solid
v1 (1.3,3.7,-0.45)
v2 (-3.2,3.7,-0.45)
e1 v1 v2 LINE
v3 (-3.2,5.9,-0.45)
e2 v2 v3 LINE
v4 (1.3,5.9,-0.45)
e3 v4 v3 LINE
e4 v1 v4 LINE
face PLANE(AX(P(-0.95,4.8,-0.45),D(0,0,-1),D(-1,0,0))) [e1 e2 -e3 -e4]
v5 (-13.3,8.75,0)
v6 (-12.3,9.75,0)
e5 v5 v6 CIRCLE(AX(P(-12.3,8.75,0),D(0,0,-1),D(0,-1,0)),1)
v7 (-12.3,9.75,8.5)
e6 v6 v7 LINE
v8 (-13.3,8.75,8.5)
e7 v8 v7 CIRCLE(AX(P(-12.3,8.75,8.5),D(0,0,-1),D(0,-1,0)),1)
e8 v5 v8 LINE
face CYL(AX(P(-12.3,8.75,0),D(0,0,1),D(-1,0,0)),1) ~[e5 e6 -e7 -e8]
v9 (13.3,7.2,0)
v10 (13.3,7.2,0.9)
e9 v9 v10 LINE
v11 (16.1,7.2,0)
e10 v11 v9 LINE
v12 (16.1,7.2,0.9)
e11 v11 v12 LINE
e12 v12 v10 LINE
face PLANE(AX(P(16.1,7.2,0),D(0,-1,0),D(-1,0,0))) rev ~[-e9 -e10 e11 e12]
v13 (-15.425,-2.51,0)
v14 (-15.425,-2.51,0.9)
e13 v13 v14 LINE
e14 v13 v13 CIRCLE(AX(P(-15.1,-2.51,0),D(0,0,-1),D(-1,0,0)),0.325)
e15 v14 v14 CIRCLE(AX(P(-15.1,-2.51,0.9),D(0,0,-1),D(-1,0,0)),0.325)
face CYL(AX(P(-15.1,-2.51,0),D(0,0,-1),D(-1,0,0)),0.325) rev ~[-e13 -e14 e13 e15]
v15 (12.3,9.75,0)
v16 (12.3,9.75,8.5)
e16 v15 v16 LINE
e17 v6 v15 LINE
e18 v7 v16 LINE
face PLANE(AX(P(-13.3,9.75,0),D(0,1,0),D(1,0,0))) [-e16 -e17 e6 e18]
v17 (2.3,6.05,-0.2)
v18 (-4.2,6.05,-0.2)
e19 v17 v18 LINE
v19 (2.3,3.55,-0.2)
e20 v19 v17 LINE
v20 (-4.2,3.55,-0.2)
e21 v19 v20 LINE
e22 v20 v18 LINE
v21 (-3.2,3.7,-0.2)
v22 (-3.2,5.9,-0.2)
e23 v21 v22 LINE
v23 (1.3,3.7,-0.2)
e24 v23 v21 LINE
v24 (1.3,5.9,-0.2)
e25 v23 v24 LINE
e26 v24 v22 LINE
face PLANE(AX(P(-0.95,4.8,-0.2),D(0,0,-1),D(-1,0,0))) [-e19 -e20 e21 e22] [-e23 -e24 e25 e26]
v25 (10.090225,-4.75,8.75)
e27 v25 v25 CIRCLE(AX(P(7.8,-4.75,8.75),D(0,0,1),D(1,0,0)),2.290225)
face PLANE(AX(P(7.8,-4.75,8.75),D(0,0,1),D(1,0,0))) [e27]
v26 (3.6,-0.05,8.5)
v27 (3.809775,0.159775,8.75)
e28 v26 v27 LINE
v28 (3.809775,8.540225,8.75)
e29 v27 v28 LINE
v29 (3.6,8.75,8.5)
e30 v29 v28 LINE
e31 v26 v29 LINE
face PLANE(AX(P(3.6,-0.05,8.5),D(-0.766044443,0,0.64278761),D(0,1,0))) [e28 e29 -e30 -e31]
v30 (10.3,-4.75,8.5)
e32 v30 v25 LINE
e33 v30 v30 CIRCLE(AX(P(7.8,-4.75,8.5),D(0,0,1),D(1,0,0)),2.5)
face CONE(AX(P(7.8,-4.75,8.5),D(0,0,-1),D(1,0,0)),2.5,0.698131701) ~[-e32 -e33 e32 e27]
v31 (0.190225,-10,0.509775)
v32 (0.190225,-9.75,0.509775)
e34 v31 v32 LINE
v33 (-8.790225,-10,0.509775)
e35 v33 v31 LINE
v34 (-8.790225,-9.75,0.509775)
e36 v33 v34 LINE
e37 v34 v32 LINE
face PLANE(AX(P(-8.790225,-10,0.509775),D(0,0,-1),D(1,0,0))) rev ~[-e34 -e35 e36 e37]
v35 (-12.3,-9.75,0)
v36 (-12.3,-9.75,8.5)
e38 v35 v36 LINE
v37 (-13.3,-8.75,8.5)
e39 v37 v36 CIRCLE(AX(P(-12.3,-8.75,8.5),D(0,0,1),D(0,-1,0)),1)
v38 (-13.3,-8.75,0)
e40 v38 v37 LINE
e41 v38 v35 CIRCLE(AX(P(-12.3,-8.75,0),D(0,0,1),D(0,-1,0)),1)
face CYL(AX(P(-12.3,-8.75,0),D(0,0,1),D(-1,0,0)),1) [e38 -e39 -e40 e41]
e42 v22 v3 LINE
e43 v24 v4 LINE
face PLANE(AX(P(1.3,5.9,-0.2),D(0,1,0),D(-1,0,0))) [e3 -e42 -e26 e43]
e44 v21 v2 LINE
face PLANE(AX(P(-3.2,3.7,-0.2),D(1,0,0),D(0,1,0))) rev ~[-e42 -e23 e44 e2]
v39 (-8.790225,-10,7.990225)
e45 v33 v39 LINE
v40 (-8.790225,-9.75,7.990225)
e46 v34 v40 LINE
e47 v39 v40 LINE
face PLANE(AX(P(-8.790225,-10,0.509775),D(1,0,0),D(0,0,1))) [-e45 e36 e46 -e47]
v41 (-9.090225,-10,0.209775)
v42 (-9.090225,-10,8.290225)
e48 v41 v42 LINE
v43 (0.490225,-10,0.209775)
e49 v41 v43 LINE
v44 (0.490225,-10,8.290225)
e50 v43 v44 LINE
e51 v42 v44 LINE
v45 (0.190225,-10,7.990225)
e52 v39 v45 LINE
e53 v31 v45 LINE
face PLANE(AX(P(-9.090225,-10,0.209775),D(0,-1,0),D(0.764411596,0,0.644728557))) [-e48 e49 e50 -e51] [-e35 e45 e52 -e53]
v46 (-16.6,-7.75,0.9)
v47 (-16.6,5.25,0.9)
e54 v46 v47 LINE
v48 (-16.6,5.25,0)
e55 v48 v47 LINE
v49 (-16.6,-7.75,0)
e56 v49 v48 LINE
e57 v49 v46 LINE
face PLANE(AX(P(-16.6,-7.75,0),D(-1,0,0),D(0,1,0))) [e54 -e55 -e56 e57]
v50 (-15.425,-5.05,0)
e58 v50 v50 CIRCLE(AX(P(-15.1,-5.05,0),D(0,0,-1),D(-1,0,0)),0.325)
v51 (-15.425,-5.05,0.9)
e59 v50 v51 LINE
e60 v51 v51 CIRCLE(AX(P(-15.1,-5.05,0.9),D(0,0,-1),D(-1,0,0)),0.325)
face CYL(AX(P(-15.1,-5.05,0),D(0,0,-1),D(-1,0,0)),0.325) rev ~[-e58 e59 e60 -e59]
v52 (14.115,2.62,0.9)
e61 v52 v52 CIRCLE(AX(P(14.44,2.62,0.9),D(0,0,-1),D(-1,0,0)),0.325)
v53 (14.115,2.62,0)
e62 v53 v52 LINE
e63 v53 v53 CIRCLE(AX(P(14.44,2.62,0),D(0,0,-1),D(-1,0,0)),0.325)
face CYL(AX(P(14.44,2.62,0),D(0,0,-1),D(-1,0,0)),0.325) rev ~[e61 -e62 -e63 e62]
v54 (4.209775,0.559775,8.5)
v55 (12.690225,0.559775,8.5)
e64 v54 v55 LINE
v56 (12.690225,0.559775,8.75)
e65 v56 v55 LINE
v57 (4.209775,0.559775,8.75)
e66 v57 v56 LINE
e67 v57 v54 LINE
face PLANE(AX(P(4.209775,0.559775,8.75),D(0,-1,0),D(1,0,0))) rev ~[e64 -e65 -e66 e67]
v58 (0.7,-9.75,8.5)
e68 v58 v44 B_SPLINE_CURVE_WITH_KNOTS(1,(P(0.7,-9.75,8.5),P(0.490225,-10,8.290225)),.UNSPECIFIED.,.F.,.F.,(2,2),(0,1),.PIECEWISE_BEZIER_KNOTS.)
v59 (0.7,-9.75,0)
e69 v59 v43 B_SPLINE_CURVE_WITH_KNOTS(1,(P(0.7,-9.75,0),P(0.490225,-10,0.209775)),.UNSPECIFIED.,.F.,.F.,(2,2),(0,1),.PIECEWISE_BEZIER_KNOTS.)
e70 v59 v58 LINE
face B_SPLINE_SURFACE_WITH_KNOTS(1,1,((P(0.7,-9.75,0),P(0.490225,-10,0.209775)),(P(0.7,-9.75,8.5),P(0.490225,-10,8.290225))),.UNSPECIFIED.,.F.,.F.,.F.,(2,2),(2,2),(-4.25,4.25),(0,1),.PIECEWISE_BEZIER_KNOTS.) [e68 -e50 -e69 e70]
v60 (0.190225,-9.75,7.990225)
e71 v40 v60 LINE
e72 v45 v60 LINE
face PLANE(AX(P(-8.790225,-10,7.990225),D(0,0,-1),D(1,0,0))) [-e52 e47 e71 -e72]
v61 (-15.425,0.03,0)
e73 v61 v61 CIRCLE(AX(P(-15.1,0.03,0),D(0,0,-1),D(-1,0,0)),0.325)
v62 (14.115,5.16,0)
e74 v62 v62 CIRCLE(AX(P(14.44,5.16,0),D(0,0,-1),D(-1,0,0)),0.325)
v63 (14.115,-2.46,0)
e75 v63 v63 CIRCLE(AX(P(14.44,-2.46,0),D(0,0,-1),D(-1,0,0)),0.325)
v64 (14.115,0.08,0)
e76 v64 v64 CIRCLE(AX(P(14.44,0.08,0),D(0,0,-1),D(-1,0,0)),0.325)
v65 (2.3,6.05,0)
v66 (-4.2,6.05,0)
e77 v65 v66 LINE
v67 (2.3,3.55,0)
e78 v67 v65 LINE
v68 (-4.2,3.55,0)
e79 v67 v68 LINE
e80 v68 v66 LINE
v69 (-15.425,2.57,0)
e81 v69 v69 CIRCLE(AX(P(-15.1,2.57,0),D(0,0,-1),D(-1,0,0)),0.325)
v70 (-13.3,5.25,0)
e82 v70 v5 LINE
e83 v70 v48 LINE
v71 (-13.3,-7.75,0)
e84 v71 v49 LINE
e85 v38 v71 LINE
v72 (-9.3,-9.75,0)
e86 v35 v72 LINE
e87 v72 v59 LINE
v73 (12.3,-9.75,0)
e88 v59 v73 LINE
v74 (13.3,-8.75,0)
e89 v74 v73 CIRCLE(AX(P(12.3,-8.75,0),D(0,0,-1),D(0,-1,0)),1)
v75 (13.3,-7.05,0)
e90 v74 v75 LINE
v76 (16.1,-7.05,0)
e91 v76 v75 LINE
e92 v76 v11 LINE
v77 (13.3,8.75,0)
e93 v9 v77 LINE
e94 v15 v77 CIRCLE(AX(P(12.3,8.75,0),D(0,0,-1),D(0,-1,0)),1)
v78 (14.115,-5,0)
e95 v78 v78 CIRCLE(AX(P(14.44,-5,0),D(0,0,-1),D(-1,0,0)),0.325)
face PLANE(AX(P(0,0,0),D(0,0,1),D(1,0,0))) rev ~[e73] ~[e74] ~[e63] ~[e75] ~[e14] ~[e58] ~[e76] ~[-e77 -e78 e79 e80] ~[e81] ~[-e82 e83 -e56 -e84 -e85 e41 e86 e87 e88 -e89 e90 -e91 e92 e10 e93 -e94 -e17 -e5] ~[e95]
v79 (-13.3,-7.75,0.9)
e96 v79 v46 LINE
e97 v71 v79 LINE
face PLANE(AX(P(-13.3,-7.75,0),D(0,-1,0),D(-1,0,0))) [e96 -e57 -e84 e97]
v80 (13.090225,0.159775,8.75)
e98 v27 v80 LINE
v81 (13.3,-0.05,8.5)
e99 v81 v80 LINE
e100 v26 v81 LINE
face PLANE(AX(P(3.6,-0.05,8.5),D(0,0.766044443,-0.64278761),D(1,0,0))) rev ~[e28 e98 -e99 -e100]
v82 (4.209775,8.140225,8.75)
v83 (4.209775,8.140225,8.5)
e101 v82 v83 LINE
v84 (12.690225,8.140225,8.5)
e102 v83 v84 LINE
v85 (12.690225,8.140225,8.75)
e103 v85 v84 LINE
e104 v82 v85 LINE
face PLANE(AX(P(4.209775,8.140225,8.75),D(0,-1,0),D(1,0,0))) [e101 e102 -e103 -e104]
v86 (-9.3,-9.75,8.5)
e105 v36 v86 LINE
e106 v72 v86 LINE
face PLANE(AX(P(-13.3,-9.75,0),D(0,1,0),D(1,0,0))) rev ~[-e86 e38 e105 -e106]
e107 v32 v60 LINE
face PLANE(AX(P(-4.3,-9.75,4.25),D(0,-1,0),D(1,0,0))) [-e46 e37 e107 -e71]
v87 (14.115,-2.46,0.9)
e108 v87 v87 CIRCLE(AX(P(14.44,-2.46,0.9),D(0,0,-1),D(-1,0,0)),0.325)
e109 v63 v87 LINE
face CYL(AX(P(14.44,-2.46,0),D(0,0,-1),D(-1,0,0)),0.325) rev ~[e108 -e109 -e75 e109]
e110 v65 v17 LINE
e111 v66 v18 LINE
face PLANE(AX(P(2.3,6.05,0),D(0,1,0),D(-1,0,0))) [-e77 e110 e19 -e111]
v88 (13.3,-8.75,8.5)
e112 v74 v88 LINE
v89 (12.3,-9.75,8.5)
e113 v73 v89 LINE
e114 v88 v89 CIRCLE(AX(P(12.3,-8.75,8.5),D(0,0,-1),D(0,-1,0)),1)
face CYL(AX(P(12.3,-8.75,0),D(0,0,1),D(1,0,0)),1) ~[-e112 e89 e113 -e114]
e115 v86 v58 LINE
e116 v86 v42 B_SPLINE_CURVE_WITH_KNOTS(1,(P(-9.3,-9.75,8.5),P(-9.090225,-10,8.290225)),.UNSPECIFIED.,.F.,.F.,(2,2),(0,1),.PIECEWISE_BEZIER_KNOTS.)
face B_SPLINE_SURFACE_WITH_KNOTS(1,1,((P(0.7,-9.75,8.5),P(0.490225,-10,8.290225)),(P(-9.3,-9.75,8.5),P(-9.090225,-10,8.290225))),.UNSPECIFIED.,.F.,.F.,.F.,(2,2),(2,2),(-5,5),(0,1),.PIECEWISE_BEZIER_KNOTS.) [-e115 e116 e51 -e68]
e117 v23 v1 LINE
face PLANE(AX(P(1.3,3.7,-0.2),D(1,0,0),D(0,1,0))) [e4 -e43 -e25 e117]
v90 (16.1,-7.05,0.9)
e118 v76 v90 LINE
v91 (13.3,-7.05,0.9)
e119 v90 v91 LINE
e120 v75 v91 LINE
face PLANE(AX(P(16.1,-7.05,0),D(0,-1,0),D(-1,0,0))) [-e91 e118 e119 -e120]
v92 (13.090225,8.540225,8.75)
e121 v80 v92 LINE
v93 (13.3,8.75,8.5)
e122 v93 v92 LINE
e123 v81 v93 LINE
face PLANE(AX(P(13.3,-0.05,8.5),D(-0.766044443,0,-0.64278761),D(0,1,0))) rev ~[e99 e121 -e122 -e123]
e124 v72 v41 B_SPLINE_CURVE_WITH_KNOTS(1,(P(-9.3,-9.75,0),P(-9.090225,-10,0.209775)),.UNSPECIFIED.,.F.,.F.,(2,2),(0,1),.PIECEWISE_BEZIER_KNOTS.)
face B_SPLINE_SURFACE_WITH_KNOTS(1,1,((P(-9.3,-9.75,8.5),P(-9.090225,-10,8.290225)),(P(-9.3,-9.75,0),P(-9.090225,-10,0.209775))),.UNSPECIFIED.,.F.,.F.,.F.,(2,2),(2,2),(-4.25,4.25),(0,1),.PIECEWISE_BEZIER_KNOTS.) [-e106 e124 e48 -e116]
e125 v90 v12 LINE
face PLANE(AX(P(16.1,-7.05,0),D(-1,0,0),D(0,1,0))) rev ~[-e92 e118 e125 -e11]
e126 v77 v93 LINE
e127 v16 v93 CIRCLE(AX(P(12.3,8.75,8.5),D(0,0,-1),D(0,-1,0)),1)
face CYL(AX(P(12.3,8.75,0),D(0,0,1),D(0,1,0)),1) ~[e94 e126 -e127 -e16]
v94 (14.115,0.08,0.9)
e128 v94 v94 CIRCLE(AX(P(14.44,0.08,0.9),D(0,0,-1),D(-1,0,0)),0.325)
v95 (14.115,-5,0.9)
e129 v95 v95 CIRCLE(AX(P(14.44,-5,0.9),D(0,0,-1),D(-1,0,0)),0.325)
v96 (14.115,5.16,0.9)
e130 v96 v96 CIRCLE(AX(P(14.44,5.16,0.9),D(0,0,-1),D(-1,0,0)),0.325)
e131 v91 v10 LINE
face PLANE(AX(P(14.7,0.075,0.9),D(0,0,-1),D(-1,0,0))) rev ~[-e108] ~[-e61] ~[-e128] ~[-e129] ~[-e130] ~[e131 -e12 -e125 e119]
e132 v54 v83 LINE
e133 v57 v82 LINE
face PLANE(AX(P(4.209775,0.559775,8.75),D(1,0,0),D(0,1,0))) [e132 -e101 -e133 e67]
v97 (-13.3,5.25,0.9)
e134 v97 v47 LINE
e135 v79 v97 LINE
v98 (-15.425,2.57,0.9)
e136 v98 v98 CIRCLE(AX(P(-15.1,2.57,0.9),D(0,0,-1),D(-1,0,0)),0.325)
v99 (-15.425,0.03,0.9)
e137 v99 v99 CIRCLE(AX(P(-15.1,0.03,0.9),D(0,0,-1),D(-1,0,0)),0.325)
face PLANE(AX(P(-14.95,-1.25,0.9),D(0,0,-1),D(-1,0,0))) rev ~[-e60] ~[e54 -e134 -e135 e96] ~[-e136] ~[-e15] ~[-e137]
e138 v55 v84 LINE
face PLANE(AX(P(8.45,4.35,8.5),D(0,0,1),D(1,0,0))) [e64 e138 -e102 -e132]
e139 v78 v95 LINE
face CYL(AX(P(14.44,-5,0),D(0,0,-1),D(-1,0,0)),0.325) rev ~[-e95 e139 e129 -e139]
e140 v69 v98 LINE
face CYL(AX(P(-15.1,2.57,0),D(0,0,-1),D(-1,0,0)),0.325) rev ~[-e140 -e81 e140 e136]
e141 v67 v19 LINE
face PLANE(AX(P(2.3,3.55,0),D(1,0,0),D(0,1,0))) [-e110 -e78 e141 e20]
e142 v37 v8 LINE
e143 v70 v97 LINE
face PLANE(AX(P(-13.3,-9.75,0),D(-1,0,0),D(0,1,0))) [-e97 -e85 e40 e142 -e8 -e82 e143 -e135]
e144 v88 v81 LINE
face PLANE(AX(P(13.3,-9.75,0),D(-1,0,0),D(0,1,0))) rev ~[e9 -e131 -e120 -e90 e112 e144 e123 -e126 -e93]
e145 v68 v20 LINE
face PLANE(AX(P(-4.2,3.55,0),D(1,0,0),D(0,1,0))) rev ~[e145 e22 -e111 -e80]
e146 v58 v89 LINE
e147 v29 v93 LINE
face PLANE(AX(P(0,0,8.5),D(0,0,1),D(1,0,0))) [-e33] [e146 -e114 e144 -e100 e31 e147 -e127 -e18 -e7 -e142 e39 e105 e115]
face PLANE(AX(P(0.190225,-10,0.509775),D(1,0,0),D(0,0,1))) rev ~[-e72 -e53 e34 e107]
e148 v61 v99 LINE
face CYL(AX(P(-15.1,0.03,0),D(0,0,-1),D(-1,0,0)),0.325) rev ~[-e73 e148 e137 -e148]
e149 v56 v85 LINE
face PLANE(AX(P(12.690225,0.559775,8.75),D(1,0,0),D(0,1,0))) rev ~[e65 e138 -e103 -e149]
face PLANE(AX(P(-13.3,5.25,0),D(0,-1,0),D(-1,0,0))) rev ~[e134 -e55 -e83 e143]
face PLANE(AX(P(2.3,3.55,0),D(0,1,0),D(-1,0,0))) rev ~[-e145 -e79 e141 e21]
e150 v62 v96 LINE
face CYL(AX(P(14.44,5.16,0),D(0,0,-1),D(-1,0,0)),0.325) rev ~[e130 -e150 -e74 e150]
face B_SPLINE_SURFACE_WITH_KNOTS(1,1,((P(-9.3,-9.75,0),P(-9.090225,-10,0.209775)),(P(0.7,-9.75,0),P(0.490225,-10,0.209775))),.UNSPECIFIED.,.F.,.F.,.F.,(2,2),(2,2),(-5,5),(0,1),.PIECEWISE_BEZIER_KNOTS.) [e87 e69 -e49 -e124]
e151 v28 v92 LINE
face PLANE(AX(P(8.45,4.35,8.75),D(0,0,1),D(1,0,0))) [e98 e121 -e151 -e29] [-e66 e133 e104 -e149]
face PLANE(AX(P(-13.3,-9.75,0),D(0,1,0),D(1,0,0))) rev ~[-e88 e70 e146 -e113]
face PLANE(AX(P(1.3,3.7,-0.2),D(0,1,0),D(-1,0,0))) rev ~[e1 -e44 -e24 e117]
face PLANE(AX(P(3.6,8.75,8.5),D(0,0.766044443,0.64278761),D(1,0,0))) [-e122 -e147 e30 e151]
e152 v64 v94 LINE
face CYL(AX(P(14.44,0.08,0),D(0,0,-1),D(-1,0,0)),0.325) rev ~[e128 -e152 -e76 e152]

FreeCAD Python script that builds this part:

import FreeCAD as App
import Part
import Sketcher


def edges_at(feature, points):
    """Names of the edges that pass closest to the given points."""
    edges = feature.Shape.Edges
    near = lambda p: min(range(len(edges)), key=lambda i: edges[i].distToShape(Part.Vertex(*p))[0])
    return sorted({f"Edge{near(p) + 1}" for p in points})


def faces_at(feature, points):
    """Names of the faces that lie closest to the given points."""
    faces = feature.Shape.Faces
    near = lambda p: min(range(len(faces)), key=lambda i: faces[i].distToShape(Part.Vertex(*p))[0])
    return sorted({f"Face{near(p) + 1}" for p in points})

doc = App.newDocument("Part")
body = doc.addObject("PartDesign::Body", "Body")

# Sketch on XY plane
sketch1 = body.newObject("Sketcher::SketchObject", "Sketch")
sketch1.AttachmentSupport = (doc.getObject("XY_Plane"), [""])
sketch1.MapMode = "FlatFace"
sketch1.addGeometry([
    Part.LineSegment(App.Vector(-13, 10, 0), App.Vector(-13, -10, 0)),
    Part.LineSegment(App.Vector(-13, -10, 0), App.Vector(13, -10, 0)),
    Part.LineSegment(App.Vector(13, -10, 0), App.Vector(13, 10, 0)),
    Part.LineSegment(App.Vector(13, 10, 0), App.Vector(-13, 10, 0)),
], False)
sketch1.addConstraint([
    Sketcher.Constraint("Coincident", 0, 2, 1, 1),
    Sketcher.Constraint("Coincident", 1, 2, 2, 1),
    Sketcher.Constraint("Coincident", 2, 2, 3, 1),
    Sketcher.Constraint("Coincident", 3, 2, 0, 1),
    Sketcher.Constraint("Vertical", 0),
    Sketcher.Constraint("Horizontal", 1),
    Sketcher.Constraint("Vertical", 2),
    Sketcher.Constraint("Horizontal", 3),
    Sketcher.Constraint("Symmetric", 0, 2, 2, 2, -1, 1),
    Sketcher.Constraint("DistanceX", 1, 1, 1, 2, 26.6),
    Sketcher.Constraint("DistanceY", 0, 2, 0, 1, 19.5),
])
pad1 = body.newObject("PartDesign::Pad", "Pad")
pad1.Profile = sketch1
pad1.Length = 8.5
body2 = doc.addObject("PartDesign::Body", "Body001")

# Sketch on XY plane
sketch2 = body2.newObject("Sketcher::SketchObject", "Sketch001")
sketch2.AttachmentSupport = (doc.getObject("XY_Plane001"), [""])
sketch2.MapMode = "FlatFace"
sketch2.AttachmentOffset = App.Placement(App.Vector(0, 0, 8.5), App.Rotation())
sketch2.addGeometry(Part.Circle(App.Vector(7.8, -4.8, 0), App.Vector(0, 0, 1), 2.5), False)
sketch2.addConstraint([
    Sketcher.Constraint("Diameter", 0, 5.0),
    Sketcher.Constraint("DistanceX", -1, 1, 0, 3, 7.8),
    Sketcher.Constraint("DistanceY", 0, 3, -1, 1, 4.75),
])
pad2 = body2.newObject("PartDesign::Pad", "Pad001")
pad2.Profile = sketch2
pad2.Length = 0.25
doc.recompute()

datumplane = body2.newObject("PartDesign::Plane", "DatumPlane")
datumplane.AttachmentSupport = (doc.getObject("XY_Plane001"), [""])
datumplane.MapMode = "FlatFace"
datumplane.AttachmentOffset = App.Placement(App.Vector(0, 0, 8.5), App.Rotation())
draft = body2.newObject("PartDesign::Draft", "Draft")
draft.Base = (pad2, faces_at(pad2, [(5.3, -4.75, 8.625)]))
draft.NeutralPlane = (datumplane, [""])
draft.Angle = 40
draft.Reversed = False
doc.recompute()

boolean = body.newObject("PartDesign::Boolean", "Boolean")
boolean.Type = "Fuse"
boolean.addObjects([body2])
body3 = doc.addObject("PartDesign::Body", "Body002")

# Sketch on XY plane
sketch3 = body3.newObject("Sketcher::SketchObject", "Sketch002")
sketch3.AttachmentSupport = (doc.getObject("XY_Plane002"), [""])
sketch3.MapMode = "FlatFace"
sketch3.AttachmentOffset = App.Placement(App.Vector(0, 0, 8.5), App.Rotation())
sketch3.addGeometry([
    Part.LineSegment(App.Vector(4, 9, 0), App.Vector(4, 0, 0)),
    Part.LineSegment(App.Vector(4, 0, 0), App.Vector(13, 0, 0)),
    Part.LineSegment(App.Vector(13, 0, 0), App.Vector(13, 9, 0)),
    Part.LineSegment(App.Vector(13, 9, 0), App.Vector(4, 9, 0)),
], False)
sketch3.addConstraint([
    Sketcher.Constraint("Coincident", 0, 2, 1, 1),
    Sketcher.Constraint("Coincident", 1, 2, 2, 1),
    Sketcher.Constraint("Coincident", 2, 2, 3, 1),
    Sketcher.Constraint("Coincident", 3, 2, 0, 1),
    Sketcher.Constraint("Vertical", 0),
    Sketcher.Constraint("Horizontal", 1),
    Sketcher.Constraint("Vertical", 2),
    Sketcher.Constraint("Horizontal", 3),
    Sketcher.Constraint("DistanceX", 1, 1, 1, 2, 9.7),
    Sketcher.Constraint("DistanceY", 0, 2, 0, 1, 8.8),
    Sketcher.Constraint("DistanceX", -1, 1, 0, 2, 3.6),
    Sketcher.Constraint("DistanceY", 0, 2, -1, 1, 0.05),
])
pad3 = body3.newObject("PartDesign::Pad", "Pad002")
pad3.Profile = sketch3
pad3.Length = 0.25
doc.recompute()

datumplane2 = body3.newObject("PartDesign::Plane", "DatumPlane001")
datumplane2.AttachmentSupport = (doc.getObject("XY_Plane002"), [""])
datumplane2.MapMode = "FlatFace"
datumplane2.AttachmentOffset = App.Placement(App.Vector(0, 0, 8.5), App.Rotation())
draft2 = body3.newObject("PartDesign::Draft", "Draft001")
draft2.Base = (pad3, faces_at(pad3, [
    (3.6, 4.35, 8.625),
    (8.45, -0.05, 8.625),
    (13.3, 4.35, 8.625),
    (8.45, 8.75, 8.625),
]))
draft2.NeutralPlane = (datumplane2, [""])
draft2.Angle = 40
draft2.Reversed = False
doc.recompute()

boolean2 = body.newObject("PartDesign::Boolean", "Boolean001")
boolean2.Type = "Fuse"
boolean2.addObjects([body3])

# Sketch on XY plane
sketch4 = body.newObject("Sketcher::SketchObject", "Sketch003")
sketch4.AttachmentSupport = (doc.getObject("XY_Plane"), [""])
sketch4.MapMode = "FlatFace"
sketch4.AttachmentOffset = App.Placement(App.Vector(0, 0, 8.75), App.Rotation())
sketch4.addGeometry([
    Part.LineSegment(App.Vector(4, 8, 0), App.Vector(4, 1, 0)),
    Part.LineSegment(App.Vector(4, 1, 0), App.Vector(13, 1, 0)),
    Part.LineSegment(App.Vector(13, 1, 0), App.Vector(13, 8, 0)),
    Part.LineSegment(App.Vector(13, 8, 0), App.Vector(4, 8, 0)),
], False)
sketch4.addConstraint([
    Sketcher.Constraint("Coincident", 0, 2, 1, 1),
    Sketcher.Constraint("Coincident", 1, 2, 2, 1),
    Sketcher.Constraint("Coincident", 2, 2, 3, 1),
    Sketcher.Constraint("Coincident", 3, 2, 0, 1),
    Sketcher.Constraint("Vertical", 0),
    Sketcher.Constraint("Horizontal", 1),
    Sketcher.Constraint("Vertical", 2),
    Sketcher.Constraint("Horizontal", 3),
    Sketcher.Constraint("DistanceX", 1, 1, 1, 2, 8.48045),
    Sketcher.Constraint("DistanceY", 0, 2, 0, 1, 7.58045),
    Sketcher.Constraint("DistanceX", -1, 1, 0, 2, 4.209775),
    Sketcher.Constraint("DistanceY", -1, 1, 0, 2, 0.559775),
])
pocket1 = body.newObject("PartDesign::Pocket", "Pocket")
pocket1.Profile = sketch4
pocket1.Length = 0.25

# Sketch on XZ plane
sketch5 = body.newObject("Sketcher::SketchObject", "Sketch004")
sketch5.AttachmentSupport = (doc.getObject("XZ_Plane"), [""])
sketch5.MapMode = "FlatFace"
sketch5.AttachmentOffset = App.Placement(App.Vector(0, 0, 9.75), App.Rotation())
sketch5.addGeometry([
    Part.LineSegment(App.Vector(-9, 8, 0), App.Vector(-9, 0, 0)),
    Part.LineSegment(App.Vector(-9, 0, 0), App.Vector(1, 0, 0)),
    Part.LineSegment(App.Vector(1, 0, 0), App.Vector(1, 8, 0)),
    Part.LineSegment(App.Vector(1, 8, 0), App.Vector(-9, 8, 0)),
], False)
sketch5.addConstraint([
    Sketcher.Constraint("Coincident", 0, 2, 1, 1),
    Sketcher.Constraint("Coincident", 1, 2, 2, 1),
    Sketcher.Constraint("Coincident", 2, 2, 3, 1),
    Sketcher.Constraint("Coincident", 3, 2, 0, 1),
    Sketcher.Constraint("Vertical", 0),
    Sketcher.Constraint("Horizontal", 1),
    Sketcher.Constraint("Vertical", 2),
    Sketcher.Constraint("Horizontal", 3),
    Sketcher.Constraint("PointOnObject", 0, 2, -1),
    Sketcher.Constraint("DistanceX", 1, 1, 1, 2, 10.0),
    Sketcher.Constraint("DistanceY", 0, 2, 0, 1, 8.5),
    Sketcher.Constraint("DistanceX", 0, 2, -1, 1, 9.3),
])
pad4 = body.newObject("PartDesign::Pad", "Pad003")
pad4.Profile = sketch5
pad4.Length = 0.25
pad4.TaperAngle = -40

# Sketch on XZ plane
sketch6 = body.newObject("Sketcher::SketchObject", "Sketch005")
sketch6.AttachmentSupport = (doc.getObject("XZ_Plane"), [""])
sketch6.MapMode = "FlatFace"
sketch6.AttachmentOffset = App.Placement(App.Vector(0, 0, 10), App.Rotation())
sketch6.addGeometry([
    Part.LineSegment(App.Vector(-9, 8, 0), App.Vector(-9, 1, 0)),
    Part.LineSegment(App.Vector(-9, 1, 0), App.Vector(0, 1, 0)),
    Part.LineSegment(App.Vector(0, 1, 0), App.Vector(0, 8, 0)),
    Part.LineSegment(App.Vector(0, 8, 0), App.Vector(-9, 8, 0)),
], False)
sketch6.addConstraint([
    Sketcher.Constraint("Coincident", 0, 2, 1, 1),
    Sketcher.Constraint("Coincident", 1, 2, 2, 1),
    Sketcher.Constraint("Coincident", 2, 2, 3, 1),
    Sketcher.Constraint("Coincident", 3, 2, 0, 1),
    Sketcher.Constraint("Vertical", 0),
    Sketcher.Constraint("Horizontal", 1),
    Sketcher.Constraint("Vertical", 2),
    Sketcher.Constraint("Horizontal", 3),
    Sketcher.Constraint("DistanceX", 1, 1, 1, 2, 8.98045),
    Sketcher.Constraint("DistanceY", 0, 2, 0, 1, 7.48045),
    Sketcher.Constraint("DistanceX", 0, 2, -1, 1, 8.790225),
    Sketcher.Constraint("DistanceY", -1, 1, 0, 2, 0.509775),
])
pocket2 = body.newObject("PartDesign::Pocket", "Pocket001")
pocket2.Profile = sketch6
pocket2.Length = 0.25
doc.recompute()

fillet = body.newObject("PartDesign::Fillet", "Fillet")
fillet.Base = (pocket2, edges_at(pocket2, [
    (-13.3, 9.75, 4.25),
    (13.3, 9.75, 4.25),
    (13.3, -9.75, 4.25),
    (-13.3, -9.75, 4.25),
]))
fillet.Radius = 1

# Sketch on XY plane
sketch7 = body.newObject("Sketcher::SketchObject", "Sketch006")
sketch7.AttachmentSupport = (doc.getObject("XY_Plane"), [""])
sketch7.MapMode = "FlatFace"
sketch7.addGeometry([
    Part.LineSegment(App.Vector(2.3, 6, 0), App.Vector(2.3, 3.5, 0)),
    Part.LineSegment(App.Vector(2.3, 3.5, 0), App.Vector(-4.2, 3.5, 0)),
    Part.LineSegment(App.Vector(-4.2, 3.5, 0), App.Vector(-4.2, 6, 0)),
    Part.LineSegment(App.Vector(-4.2, 6, 0), App.Vector(2.3, 6, 0)),
], False)
sketch7.addConstraint([
    Sketcher.Constraint("Coincident", 0, 2, 1, 1),
    Sketcher.Constraint("Coincident", 1, 2, 2, 1),
    Sketcher.Constraint("Coincident", 2, 2, 3, 1),
    Sketcher.Constraint("Coincident", 3, 2, 0, 1),
    Sketcher.Constraint("Vertical", 0),
    Sketcher.Constraint("Horizontal", 1),
    Sketcher.Constraint("Vertical", 2),
    Sketcher.Constraint("Horizontal", 3),
    Sketcher.Constraint("DistanceX", 1, 2, 1, 1, 6.5),
    Sketcher.Constraint("DistanceY", 0, 2, 0, 1, 2.5),
    Sketcher.Constraint("DistanceX", -1, 1, 0, 2, 2.3),
    Sketcher.Constraint("DistanceY", -1, 1, 0, 2, 3.55),
])
pad5 = body.newObject("PartDesign::Pad", "Pad004")
pad5.Profile = sketch7
pad5.Length = 0.2
pad5.Reversed = True

# Sketch on XY plane
sketch8 = body.newObject("Sketcher::SketchObject", "Sketch007")
sketch8.AttachmentSupport = (doc.getObject("XY_Plane"), [""])
sketch8.MapMode = "FlatFace"
sketch8.AttachmentOffset = App.Placement(App.Vector(0, 0, -0.2), App.Rotation())
sketch8.addGeometry([
    Part.LineSegment(App.Vector(1.3, 5.9, 0), App.Vector(1.3, 3.7, 0)),
    Part.LineSegment(App.Vector(1.3, 3.7, 0), App.Vector(-3.2, 3.7, 0)),
    Part.LineSegment(App.Vector(-3.2, 3.7, 0), App.Vector(-3.2, 5.9, 0)),
    Part.LineSegment(App.Vector(-3.2, 5.9, 0), App.Vector(1.3, 5.9, 0)),
], False)
sketch8.addConstraint([
    Sketcher.Constraint("Coincident", 0, 2, 1, 1),
    Sketcher.Constraint("Coincident", 1, 2, 2, 1),
    Sketcher.Constraint("Coincident", 2, 2, 3, 1),
    Sketcher.Constraint("Coincident", 3, 2, 0, 1),
    Sketcher.Constraint("Vertical", 0),
    Sketcher.Constraint("Horizontal", 1),
    Sketcher.Constraint("Vertical", 2),
    Sketcher.Constraint("Horizontal", 3),
    Sketcher.Constraint("DistanceX", 1, 2, 1, 1, 4.5),
    Sketcher.Constraint("DistanceY", 0, 2, 0, 1, 2.2),
    Sketcher.Constraint("DistanceX", -1, 1, 0, 2, 1.3),
    Sketcher.Constraint("DistanceY", -1, 1, 0, 2, 3.7),
])
pad6 = body.newObject("PartDesign::Pad", "Pad005")
pad6.Profile = sketch8
pad6.Length = 0.25
pad6.Reversed = True

# Sketch on XY plane
sketch9 = body.newObject("Sketcher::SketchObject", "Sketch008")
sketch9.AttachmentSupport = (doc.getObject("XY_Plane"), [""])
sketch9.MapMode = "FlatFace"
sketch9.addGeometry([
    Part.LineSegment(App.Vector(-13.3, 5.2, 0), App.Vector(-13.3, -7.8, 0)),  # 0
    Part.LineSegment(App.Vector(-13.3, -7.8, 0), App.Vector(-16.6, -7.8, 0)),  # 1
    Part.LineSegment(App.Vector(-16.6, -7.8, 0), App.Vector(-16.6, 5.2, 0)),  # 2
    Part.LineSegment(App.Vector(-16.6, 5.2, 0), App.Vector(-13.3, 5.2, 0)),  # 3
    Part.LineSegment(App.Vector(16.1, 7.2, 0), App.Vector(16.1, -7, 0)),  # 4
    Part.LineSegment(App.Vector(16.1, -7, 0), App.Vector(13.3, -7, 0)),  # 5
    Part.LineSegment(App.Vector(13.3, -7, 0), App.Vector(13.3, 7.2, 0)),  # 6
    Part.LineSegment(App.Vector(13.3, 7.2, 0), App.Vector(16.1, 7.2, 0)),  # 7
], False)
sketch9.addConstraint([
    Sketcher.Constraint("Coincident", 0, 2, 1, 1),
    Sketcher.Constraint("Coincident", 1, 2, 2, 1),
    Sketcher.Constraint("Coincident", 2, 2, 3, 1),
    Sketcher.Constraint("Coincident", 3, 2, 0, 1),
    Sketcher.Constraint("Coincident", 4, 2, 5, 1),
    Sketcher.Constraint("Coincident", 5, 2, 6, 1),
    Sketcher.Constraint("Coincident", 6, 2, 7, 1),
    Sketcher.Constraint("Coincident", 7, 2, 4, 1),
    Sketcher.Constraint("Vertical", 0),
    Sketcher.Constraint("Horizontal", 1),
    Sketcher.Constraint("Vertical", 2),
    Sketcher.Constraint("Horizontal", 3),
    Sketcher.Constraint("Vertical", 4),
    Sketcher.Constraint("Horizontal", 5),
    Sketcher.Constraint("Vertical", 6),
    Sketcher.Constraint("Horizontal", 7),
    Sketcher.Constraint("DistanceY", 0, 2, 0, 1, 13.0),
    Sketcher.Constraint("DistanceX", 1, 2, 1, 1, 3.3),
    Sketcher.Constraint("DistanceX", 5, 2, 5, 1, 2.8),
    Sketcher.Constraint("DistanceY", 4, 2, 4, 1, 14.25),
    Sketcher.Constraint("DistanceX", 0, 2, -1, 1, 13.3),
    Sketcher.Constraint("DistanceX", -1, 1, 4, 2, 16.1),
    Sketcher.Constraint("DistanceY", -1, 1, 6, 2, 7.2),
    Sketcher.Constraint("DistanceY", 0, 2, 4, 2, 0.7),
])
pad7 = body.newObject("PartDesign::Pad", "Pad006")
pad7.Profile = sketch9
pad7.Length = 0.9

# Sketch on XY plane
sketch10 = body.newObject("Sketcher::SketchObject", "Sketch009")
sketch10.AttachmentSupport = (doc.getObject("XY_Plane"), [""])
sketch10.MapMode = "FlatFace"
sketch10.addGeometry(Part.Circle(App.Vector(-15.1, -5.05, 0), App.Vector(0, 0, 1), 0.33), False)
sketch10.addConstraint([
    Sketcher.Constraint("Diameter", 0, 0.65),
    Sketcher.Constraint("DistanceX", 0, 3, -1, 1, 15.1),
    Sketcher.Constraint("DistanceY", 0, 3, -1, 1, 5.05),
])
pocket3 = body.newObject("PartDesign::Pocket", "Pocket002")
pocket3.Profile = sketch10
pocket3.Type = "UpToFirst"
pocket3.Reversed = True

# Sketch on XY plane
sketch11 = body.newObject("Sketcher::SketchObject", "Sketch010")
sketch11.AttachmentSupport = (doc.getObject("XY_Plane"), [""])
sketch11.MapMode = "FlatFace"
sketch11.addGeometry(Part.Circle(App.Vector(-15.1, -2.51, 0), App.Vector(0, 0, 1), 0.33), False)
sketch11.addConstraint([
    Sketcher.Constraint("Diameter", 0, 0.65),
    Sketcher.Constraint("DistanceX", 0, 3, -1, 1, 15.1),
    Sketcher.Constraint("DistanceY", 0, 3, -1, 1, 2.51),
])
pocket4 = body.newObject("PartDesign::Pocket", "Pocket003")
pocket4.Profile = sketch11
pocket4.Type = "UpToFirst"
pocket4.Reversed = True

# Sketch on XY plane
sketch12 = body.newObject("Sketcher::SketchObject", "Sketch011")
sketch12.AttachmentSupport = (doc.getObject("XY_Plane"), [""])
sketch12.MapMode = "FlatFace"
sketch12.addGeometry(Part.Circle(App.Vector(-15.1, 0.03, 0), App.Vector(0, 0, 1), 0.33), False)
sketch12.addConstraint([
    Sketcher.Constraint("Diameter", 0, 0.65),
    Sketcher.Constraint("DistanceX", 0, 3, -1, 1, 15.1),
    Sketcher.Constraint("DistanceY", -1, 1, 0, 3, 0.03),
])
pocket5 = body.newObject("PartDesign::Pocket", "Pocket004")
pocket5.Profile = sketch12
pocket5.Type = "UpToFirst"
pocket5.Reversed = True

# Sketch on XY plane
sketch13 = body.newObject("Sketcher::SketchObject", "Sketch012")
sketch13.AttachmentSupport = (doc.getObject("XY_Plane"), [""])
sketch13.MapMode = "FlatFace"
sketch13.addGeometry(Part.Circle(App.Vector(-15.1, 2.57, 0), App.Vector(0, 0, 1), 0.33), False)
sketch13.addConstraint([
    Sketcher.Constraint("Diameter", 0, 0.65),
    Sketcher.Constraint("DistanceX", 0, 3, -1, 1, 15.1),
    Sketcher.Constraint("DistanceY", -1, 1, 0, 3, 2.57),
])
pocket6 = body.newObject("PartDesign::Pocket", "Pocket005")
pocket6.Profile = sketch13
pocket6.Type = "UpToFirst"
pocket6.Reversed = True

# Sketch on XY plane
sketch14 = body.newObject("Sketcher::SketchObject", "Sketch013")
sketch14.AttachmentSupport = (doc.getObject("XY_Plane"), [""])
sketch14.MapMode = "FlatFace"
sketch14.addGeometry(Part.Circle(App.Vector(14.44, -5, 0), App.Vector(0, 0, 1), 0.33), False)
sketch14.addConstraint([
    Sketcher.Constraint("Diameter", 0, 0.65),
    Sketcher.Constraint("DistanceY", 0, 3, -1, 1, 5.0),
    Sketcher.Constraint("DistanceX", -1, 1, 0, 3, 14.44),
])
pocket7 = body.newObject("PartDesign::Pocket", "Pocket006")
pocket7.Profile = sketch14
pocket7.Type = "UpToFirst"
pocket7.Reversed = True

# Sketch on XY plane
sketch15 = body.newObject("Sketcher::SketchObject", "Sketch014")
sketch15.AttachmentSupport = (doc.getObject("XY_Plane"), [""])
sketch15.MapMode = "FlatFace"
sketch15.addGeometry(Part.Circle(App.Vector(14.44, -2.46, 0), App.Vector(0, 0, 1), 0.33), False)
sketch15.addConstraint([
    Sketcher.Constraint("Diameter", 0, 0.65),
    Sketcher.Constraint("DistanceX", -1, 1, 0, 3, 14.44),
    Sketcher.Constraint("DistanceY", 0, 3, -1, 1, 2.46),
])
pocket8 = body.newObject("PartDesign::Pocket", "Pocket007")
pocket8.Profile = sketch15
pocket8.Type = "UpToFirst"
pocket8.Reversed = True

# Sketch on XY plane
sketch16 = body.newObject("Sketcher::SketchObject", "Sketch015")
sketch16.AttachmentSupport = (doc.getObject("XY_Plane"), [""])
sketch16.MapMode = "FlatFace"
sketch16.addGeometry(Part.Circle(App.Vector(14.44, 0.08, 0), App.Vector(0, 0, 1), 0.33), False)
sketch16.addConstraint([
    Sketcher.Constraint("Diameter", 0, 0.65),
    Sketcher.Constraint("DistanceX", -1, 1, 0, 3, 14.44),
    Sketcher.Constraint("DistanceY", -1, 1, 0, 3, 0.08),
])
pocket9 = body.newObject("PartDesign::Pocket", "Pocket008")
pocket9.Profile = sketch16
pocket9.Type = "UpToFirst"
pocket9.Reversed = True

# Sketch on XY plane
sketch17 = body.newObject("Sketcher::SketchObject", "Sketch016")
sketch17.AttachmentSupport = (doc.getObject("XY_Plane"), [""])
sketch17.MapMode = "FlatFace"
sketch17.addGeometry(Part.Circle(App.Vector(14.44, 2.62, 0), App.Vector(0, 0, 1), 0.33), False)
sketch17.addConstraint([
    Sketcher.Constraint("Diameter", 0, 0.65),
    Sketcher.Constraint("DistanceX", -1, 1, 0, 3, 14.44),
    Sketcher.Constraint("DistanceY", -1, 1, 0, 3, 2.62),
])
pocket10 = body.newObject("PartDesign::Pocket", "Pocket009")
pocket10.Profile = sketch17
pocket10.Type = "UpToFirst"
pocket10.Reversed = True

# Sketch on XY plane
sketch18 = body.newObject("Sketcher::SketchObject", "Sketch017")
sketch18.AttachmentSupport = (doc.getObject("XY_Plane"), [""])
sketch18.MapMode = "FlatFace"
sketch18.addGeometry(Part.Circle(App.Vector(14.44, 5.16, 0), App.Vector(0, 0, 1), 0.33), False)
sketch18.addConstraint([
    Sketcher.Constraint("Diameter", 0, 0.65),
    Sketcher.Constraint("DistanceX", -1, 1, 0, 3, 14.44),
    Sketcher.Constraint("DistanceY", -1, 1, 0, 3, 5.16),
])
pocket11 = body.newObject("PartDesign::Pocket", "Pocket010")
pocket11.Profile = sketch18
pocket11.Type = "UpToFirst"
pocket11.Reversed = True

doc.recompute()
